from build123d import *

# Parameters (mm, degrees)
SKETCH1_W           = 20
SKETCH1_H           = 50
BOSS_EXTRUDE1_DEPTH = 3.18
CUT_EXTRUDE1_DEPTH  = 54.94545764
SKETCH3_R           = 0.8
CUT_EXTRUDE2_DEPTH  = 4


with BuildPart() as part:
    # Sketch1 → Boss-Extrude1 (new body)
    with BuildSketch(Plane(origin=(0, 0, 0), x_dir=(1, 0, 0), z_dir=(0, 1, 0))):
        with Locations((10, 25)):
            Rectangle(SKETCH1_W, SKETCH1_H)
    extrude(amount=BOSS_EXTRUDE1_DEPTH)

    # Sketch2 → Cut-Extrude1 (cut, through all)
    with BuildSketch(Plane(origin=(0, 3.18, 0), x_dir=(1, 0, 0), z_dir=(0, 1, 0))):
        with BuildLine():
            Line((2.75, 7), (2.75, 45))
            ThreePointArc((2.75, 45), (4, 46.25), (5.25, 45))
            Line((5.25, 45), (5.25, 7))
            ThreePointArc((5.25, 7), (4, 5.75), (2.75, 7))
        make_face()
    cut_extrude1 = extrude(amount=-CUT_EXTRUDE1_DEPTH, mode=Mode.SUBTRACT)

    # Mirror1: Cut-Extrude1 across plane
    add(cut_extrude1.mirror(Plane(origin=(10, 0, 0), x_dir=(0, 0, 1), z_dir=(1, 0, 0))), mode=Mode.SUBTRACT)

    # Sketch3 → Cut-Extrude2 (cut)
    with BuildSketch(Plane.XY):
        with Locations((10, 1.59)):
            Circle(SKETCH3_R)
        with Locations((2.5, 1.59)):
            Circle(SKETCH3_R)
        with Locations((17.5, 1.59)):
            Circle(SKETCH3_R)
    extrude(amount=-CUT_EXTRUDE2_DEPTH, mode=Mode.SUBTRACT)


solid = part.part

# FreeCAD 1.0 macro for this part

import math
import FreeCAD as App
import Part
import Sketcher
Q = App.Units.Quantity


def add_polygon(sketch, points):
    """Adds a closed chain of lines whose ends are joined by coincident constraints."""
    first, n = sketch.GeometryCount, len(points)
    for a, b in zip(points, points[1:] + points[:1]):
        sketch.addGeometry(Part.LineSegment(App.Vector(*a, 0), App.Vector(*b, 0)), False)
    for i in range(n):
        sketch.addConstraint(Sketcher.Constraint("Coincident", first + i, 2, first + (i + 1) % n, 1))

doc = App.newDocument("Part")
params = doc.addObject("Spreadsheet::Sheet", "Params")
for row, (alias, value) in enumerate([
    ("sketch1_width", "20 mm"),
    ("sketch1_height", "50 mm"),
    ("pad1_length", "3.18 mm"),
    ("sketch2_height", "38 mm"),
    ("sketch2_radius", "1.25 mm"),
    ("sketch3_diameter", "1.6 mm"),
    ("pocket2_length", "4 mm"),
], start=1):
    params.set(f"A{row}", alias)
    params.set(f"B{row}", "=" + value)
    params.setAlias(f"B{row}", alias)

body = doc.addObject("PartDesign::Body", "Body")

# Sketch on XZ plane
sketch1 = body.newObject("Sketcher::SketchObject", "Sketch")
sketch1.AttachmentSupport = (doc.getObject("XZ_Plane"), [""])
sketch1.MapMode = "FlatFace"
add_polygon(sketch1, [(0, -50), (0, 0), (20, 0), (20, -50)])  # lines 0-3
sketch1.addConstraint([
    Sketcher.Constraint("Vertical", 0),
    Sketcher.Constraint("Horizontal", 1),
    Sketcher.Constraint("Vertical", 2),
    Sketcher.Constraint("Horizontal", 3),
    Sketcher.Constraint("Coincident", 0, 2, -1, 1),
    Sketcher.Constraint("DistanceX", 1, 1, 1, 2, Q("20 mm")),
    Sketcher.Constraint("DistanceY", 0, 1, 0, 2, Q("50 mm")),
])
sketch1.setExpression("Constraints[9]", "Params.sketch1_width")
sketch1.setExpression("Constraints[10]", "Params.sketch1_height")
pad1 = body.newObject("PartDesign::Pad", "Pad")
pad1.Profile = sketch1
pad1.setExpression("Length", "Params.pad1_length")
pad1.Reversed = True

# Sketch on XZ plane
sketch2 = body.newObject("Sketcher::SketchObject", "Sketch001")
sketch2.AttachmentSupport = (doc.getObject("XZ_Plane"), [""])
sketch2.MapMode = "FlatFace"
sketch2.AttachmentOffset = App.Placement(App.Vector(0, 0, -3.18), App.Rotation())
sketch2.addGeometry([
    Part.LineSegment(App.Vector(2.8, -45, 0), App.Vector(2.8, -7, 0)),
    Part.ArcOfCircle(Part.Circle(App.Vector(4, -7, 0), App.Vector(0, 0, 1), 1.2), math.radians(0), math.radians(180)),
    Part.LineSegment(App.Vector(5.2, -7, 0), App.Vector(5.2, -45, 0)),
    Part.ArcOfCircle(Part.Circle(App.Vector(4, -45, 0), App.Vector(0, 0, 1), 1.2), math.radians(180), math.radians(360)),
], False)
sketch2.addConstraint([
    Sketcher.Constraint("Tangent", 0, 2, 1, 2),
    Sketcher.Constraint("Tangent", 1, 1, 2, 1),
    Sketcher.Constraint("Tangent", 2, 2, 3, 2),
    Sketcher.Constraint("Tangent", 3, 1, 0, 1),
    Sketcher.Constraint("Vertical", 0),
    Sketcher.Constraint("Vertical", 2),
    Sketcher.Constraint("DistanceY", 0, 1, 0, 2, Q("38 mm")),
    Sketcher.Constraint("Radius", 1, Q("1.25 mm")),
    Sketcher.Constraint("DistanceX", -1, 1, 1, 3, Q("4 mm")),
    Sketcher.Constraint("DistanceY", 1, 3, -1, 1, Q("7 mm")),
])
sketch2.setExpression("Constraints[6]", "Params.sketch2_height")
sketch2.setExpression("Constraints[7]", "Params.sketch2_radius")
pocket1 = body.newObject("PartDesign::Pocket", "Pocket")
pocket1.Profile = sketch2
pocket1.Type = "ThroughAll"
pocket1.Reversed = True
doc.recompute()

datumplane = body.newObject("PartDesign::Plane", "DatumPlane")
datumplane.AttachmentSupport = (doc.getObject("YZ_Plane"), [""])
datumplane.MapMode = "FlatFace"
datumplane.AttachmentOffset = App.Placement(App.Vector(0, 0, 10), App.Rotation())
mirrored = body.newObject("PartDesign::Mirrored", "Mirrored")
mirrored.Originals = [pocket1]
mirrored.MirrorPlane = (datumplane, [""])
body.Tip = mirrored

# Sketch on XY plane
sketch3 = body.newObject("Sketcher::SketchObject", "Sketch002")
sketch3.AttachmentSupport = (doc.getObject("XY_Plane"), [""])
sketch3.MapMode = "FlatFace"
sketch3.addGeometry([
    Part.Circle(App.Vector(10, 1.6, 0), App.Vector(0, 0, 1), 0.8),
    Part.Circle(App.Vector(2.5, 1.6, 0), App.Vector(0, 0, 1), 0.8),
    Part.Circle(App.Vector(17.5, 1.6, 0), App.Vector(0, 0, 1), 0.8),
], False)
sketch3.addConstraint([
    Sketcher.Constraint("Equal", 0, 1),
    Sketcher.Constraint("Equal", 1, 2),
    Sketcher.Constraint("Horizontal", 0, 3, 1, 3),
    Sketcher.Constraint("Horizontal", 1, 3, 2, 3),
    Sketcher.Constraint("Diameter", 0, Q("1.6 mm")),
    Sketcher.Constraint("DistanceX", -1, 1, 0, 3, Q("10 mm")),
    Sketcher.Constraint("DistanceX", 1, 3, 2, 3, Q("15 mm")),
    Sketcher.Constraint("DistanceX", -1, 1, 1, 3, Q("2.5 mm")),
    Sketcher.Constraint("DistanceY", -1, 1, 0, 3, Q("1.59 mm")),
])
sketch3.setExpression("Constraints[4]", "Params.sketch3_diameter")
pocket2 = body.newObject("PartDesign::Pocket", "Pocket001")
pocket2.Profile = sketch3
pocket2.setExpression("Length", "Params.pocket2_length")

doc.recompute()
